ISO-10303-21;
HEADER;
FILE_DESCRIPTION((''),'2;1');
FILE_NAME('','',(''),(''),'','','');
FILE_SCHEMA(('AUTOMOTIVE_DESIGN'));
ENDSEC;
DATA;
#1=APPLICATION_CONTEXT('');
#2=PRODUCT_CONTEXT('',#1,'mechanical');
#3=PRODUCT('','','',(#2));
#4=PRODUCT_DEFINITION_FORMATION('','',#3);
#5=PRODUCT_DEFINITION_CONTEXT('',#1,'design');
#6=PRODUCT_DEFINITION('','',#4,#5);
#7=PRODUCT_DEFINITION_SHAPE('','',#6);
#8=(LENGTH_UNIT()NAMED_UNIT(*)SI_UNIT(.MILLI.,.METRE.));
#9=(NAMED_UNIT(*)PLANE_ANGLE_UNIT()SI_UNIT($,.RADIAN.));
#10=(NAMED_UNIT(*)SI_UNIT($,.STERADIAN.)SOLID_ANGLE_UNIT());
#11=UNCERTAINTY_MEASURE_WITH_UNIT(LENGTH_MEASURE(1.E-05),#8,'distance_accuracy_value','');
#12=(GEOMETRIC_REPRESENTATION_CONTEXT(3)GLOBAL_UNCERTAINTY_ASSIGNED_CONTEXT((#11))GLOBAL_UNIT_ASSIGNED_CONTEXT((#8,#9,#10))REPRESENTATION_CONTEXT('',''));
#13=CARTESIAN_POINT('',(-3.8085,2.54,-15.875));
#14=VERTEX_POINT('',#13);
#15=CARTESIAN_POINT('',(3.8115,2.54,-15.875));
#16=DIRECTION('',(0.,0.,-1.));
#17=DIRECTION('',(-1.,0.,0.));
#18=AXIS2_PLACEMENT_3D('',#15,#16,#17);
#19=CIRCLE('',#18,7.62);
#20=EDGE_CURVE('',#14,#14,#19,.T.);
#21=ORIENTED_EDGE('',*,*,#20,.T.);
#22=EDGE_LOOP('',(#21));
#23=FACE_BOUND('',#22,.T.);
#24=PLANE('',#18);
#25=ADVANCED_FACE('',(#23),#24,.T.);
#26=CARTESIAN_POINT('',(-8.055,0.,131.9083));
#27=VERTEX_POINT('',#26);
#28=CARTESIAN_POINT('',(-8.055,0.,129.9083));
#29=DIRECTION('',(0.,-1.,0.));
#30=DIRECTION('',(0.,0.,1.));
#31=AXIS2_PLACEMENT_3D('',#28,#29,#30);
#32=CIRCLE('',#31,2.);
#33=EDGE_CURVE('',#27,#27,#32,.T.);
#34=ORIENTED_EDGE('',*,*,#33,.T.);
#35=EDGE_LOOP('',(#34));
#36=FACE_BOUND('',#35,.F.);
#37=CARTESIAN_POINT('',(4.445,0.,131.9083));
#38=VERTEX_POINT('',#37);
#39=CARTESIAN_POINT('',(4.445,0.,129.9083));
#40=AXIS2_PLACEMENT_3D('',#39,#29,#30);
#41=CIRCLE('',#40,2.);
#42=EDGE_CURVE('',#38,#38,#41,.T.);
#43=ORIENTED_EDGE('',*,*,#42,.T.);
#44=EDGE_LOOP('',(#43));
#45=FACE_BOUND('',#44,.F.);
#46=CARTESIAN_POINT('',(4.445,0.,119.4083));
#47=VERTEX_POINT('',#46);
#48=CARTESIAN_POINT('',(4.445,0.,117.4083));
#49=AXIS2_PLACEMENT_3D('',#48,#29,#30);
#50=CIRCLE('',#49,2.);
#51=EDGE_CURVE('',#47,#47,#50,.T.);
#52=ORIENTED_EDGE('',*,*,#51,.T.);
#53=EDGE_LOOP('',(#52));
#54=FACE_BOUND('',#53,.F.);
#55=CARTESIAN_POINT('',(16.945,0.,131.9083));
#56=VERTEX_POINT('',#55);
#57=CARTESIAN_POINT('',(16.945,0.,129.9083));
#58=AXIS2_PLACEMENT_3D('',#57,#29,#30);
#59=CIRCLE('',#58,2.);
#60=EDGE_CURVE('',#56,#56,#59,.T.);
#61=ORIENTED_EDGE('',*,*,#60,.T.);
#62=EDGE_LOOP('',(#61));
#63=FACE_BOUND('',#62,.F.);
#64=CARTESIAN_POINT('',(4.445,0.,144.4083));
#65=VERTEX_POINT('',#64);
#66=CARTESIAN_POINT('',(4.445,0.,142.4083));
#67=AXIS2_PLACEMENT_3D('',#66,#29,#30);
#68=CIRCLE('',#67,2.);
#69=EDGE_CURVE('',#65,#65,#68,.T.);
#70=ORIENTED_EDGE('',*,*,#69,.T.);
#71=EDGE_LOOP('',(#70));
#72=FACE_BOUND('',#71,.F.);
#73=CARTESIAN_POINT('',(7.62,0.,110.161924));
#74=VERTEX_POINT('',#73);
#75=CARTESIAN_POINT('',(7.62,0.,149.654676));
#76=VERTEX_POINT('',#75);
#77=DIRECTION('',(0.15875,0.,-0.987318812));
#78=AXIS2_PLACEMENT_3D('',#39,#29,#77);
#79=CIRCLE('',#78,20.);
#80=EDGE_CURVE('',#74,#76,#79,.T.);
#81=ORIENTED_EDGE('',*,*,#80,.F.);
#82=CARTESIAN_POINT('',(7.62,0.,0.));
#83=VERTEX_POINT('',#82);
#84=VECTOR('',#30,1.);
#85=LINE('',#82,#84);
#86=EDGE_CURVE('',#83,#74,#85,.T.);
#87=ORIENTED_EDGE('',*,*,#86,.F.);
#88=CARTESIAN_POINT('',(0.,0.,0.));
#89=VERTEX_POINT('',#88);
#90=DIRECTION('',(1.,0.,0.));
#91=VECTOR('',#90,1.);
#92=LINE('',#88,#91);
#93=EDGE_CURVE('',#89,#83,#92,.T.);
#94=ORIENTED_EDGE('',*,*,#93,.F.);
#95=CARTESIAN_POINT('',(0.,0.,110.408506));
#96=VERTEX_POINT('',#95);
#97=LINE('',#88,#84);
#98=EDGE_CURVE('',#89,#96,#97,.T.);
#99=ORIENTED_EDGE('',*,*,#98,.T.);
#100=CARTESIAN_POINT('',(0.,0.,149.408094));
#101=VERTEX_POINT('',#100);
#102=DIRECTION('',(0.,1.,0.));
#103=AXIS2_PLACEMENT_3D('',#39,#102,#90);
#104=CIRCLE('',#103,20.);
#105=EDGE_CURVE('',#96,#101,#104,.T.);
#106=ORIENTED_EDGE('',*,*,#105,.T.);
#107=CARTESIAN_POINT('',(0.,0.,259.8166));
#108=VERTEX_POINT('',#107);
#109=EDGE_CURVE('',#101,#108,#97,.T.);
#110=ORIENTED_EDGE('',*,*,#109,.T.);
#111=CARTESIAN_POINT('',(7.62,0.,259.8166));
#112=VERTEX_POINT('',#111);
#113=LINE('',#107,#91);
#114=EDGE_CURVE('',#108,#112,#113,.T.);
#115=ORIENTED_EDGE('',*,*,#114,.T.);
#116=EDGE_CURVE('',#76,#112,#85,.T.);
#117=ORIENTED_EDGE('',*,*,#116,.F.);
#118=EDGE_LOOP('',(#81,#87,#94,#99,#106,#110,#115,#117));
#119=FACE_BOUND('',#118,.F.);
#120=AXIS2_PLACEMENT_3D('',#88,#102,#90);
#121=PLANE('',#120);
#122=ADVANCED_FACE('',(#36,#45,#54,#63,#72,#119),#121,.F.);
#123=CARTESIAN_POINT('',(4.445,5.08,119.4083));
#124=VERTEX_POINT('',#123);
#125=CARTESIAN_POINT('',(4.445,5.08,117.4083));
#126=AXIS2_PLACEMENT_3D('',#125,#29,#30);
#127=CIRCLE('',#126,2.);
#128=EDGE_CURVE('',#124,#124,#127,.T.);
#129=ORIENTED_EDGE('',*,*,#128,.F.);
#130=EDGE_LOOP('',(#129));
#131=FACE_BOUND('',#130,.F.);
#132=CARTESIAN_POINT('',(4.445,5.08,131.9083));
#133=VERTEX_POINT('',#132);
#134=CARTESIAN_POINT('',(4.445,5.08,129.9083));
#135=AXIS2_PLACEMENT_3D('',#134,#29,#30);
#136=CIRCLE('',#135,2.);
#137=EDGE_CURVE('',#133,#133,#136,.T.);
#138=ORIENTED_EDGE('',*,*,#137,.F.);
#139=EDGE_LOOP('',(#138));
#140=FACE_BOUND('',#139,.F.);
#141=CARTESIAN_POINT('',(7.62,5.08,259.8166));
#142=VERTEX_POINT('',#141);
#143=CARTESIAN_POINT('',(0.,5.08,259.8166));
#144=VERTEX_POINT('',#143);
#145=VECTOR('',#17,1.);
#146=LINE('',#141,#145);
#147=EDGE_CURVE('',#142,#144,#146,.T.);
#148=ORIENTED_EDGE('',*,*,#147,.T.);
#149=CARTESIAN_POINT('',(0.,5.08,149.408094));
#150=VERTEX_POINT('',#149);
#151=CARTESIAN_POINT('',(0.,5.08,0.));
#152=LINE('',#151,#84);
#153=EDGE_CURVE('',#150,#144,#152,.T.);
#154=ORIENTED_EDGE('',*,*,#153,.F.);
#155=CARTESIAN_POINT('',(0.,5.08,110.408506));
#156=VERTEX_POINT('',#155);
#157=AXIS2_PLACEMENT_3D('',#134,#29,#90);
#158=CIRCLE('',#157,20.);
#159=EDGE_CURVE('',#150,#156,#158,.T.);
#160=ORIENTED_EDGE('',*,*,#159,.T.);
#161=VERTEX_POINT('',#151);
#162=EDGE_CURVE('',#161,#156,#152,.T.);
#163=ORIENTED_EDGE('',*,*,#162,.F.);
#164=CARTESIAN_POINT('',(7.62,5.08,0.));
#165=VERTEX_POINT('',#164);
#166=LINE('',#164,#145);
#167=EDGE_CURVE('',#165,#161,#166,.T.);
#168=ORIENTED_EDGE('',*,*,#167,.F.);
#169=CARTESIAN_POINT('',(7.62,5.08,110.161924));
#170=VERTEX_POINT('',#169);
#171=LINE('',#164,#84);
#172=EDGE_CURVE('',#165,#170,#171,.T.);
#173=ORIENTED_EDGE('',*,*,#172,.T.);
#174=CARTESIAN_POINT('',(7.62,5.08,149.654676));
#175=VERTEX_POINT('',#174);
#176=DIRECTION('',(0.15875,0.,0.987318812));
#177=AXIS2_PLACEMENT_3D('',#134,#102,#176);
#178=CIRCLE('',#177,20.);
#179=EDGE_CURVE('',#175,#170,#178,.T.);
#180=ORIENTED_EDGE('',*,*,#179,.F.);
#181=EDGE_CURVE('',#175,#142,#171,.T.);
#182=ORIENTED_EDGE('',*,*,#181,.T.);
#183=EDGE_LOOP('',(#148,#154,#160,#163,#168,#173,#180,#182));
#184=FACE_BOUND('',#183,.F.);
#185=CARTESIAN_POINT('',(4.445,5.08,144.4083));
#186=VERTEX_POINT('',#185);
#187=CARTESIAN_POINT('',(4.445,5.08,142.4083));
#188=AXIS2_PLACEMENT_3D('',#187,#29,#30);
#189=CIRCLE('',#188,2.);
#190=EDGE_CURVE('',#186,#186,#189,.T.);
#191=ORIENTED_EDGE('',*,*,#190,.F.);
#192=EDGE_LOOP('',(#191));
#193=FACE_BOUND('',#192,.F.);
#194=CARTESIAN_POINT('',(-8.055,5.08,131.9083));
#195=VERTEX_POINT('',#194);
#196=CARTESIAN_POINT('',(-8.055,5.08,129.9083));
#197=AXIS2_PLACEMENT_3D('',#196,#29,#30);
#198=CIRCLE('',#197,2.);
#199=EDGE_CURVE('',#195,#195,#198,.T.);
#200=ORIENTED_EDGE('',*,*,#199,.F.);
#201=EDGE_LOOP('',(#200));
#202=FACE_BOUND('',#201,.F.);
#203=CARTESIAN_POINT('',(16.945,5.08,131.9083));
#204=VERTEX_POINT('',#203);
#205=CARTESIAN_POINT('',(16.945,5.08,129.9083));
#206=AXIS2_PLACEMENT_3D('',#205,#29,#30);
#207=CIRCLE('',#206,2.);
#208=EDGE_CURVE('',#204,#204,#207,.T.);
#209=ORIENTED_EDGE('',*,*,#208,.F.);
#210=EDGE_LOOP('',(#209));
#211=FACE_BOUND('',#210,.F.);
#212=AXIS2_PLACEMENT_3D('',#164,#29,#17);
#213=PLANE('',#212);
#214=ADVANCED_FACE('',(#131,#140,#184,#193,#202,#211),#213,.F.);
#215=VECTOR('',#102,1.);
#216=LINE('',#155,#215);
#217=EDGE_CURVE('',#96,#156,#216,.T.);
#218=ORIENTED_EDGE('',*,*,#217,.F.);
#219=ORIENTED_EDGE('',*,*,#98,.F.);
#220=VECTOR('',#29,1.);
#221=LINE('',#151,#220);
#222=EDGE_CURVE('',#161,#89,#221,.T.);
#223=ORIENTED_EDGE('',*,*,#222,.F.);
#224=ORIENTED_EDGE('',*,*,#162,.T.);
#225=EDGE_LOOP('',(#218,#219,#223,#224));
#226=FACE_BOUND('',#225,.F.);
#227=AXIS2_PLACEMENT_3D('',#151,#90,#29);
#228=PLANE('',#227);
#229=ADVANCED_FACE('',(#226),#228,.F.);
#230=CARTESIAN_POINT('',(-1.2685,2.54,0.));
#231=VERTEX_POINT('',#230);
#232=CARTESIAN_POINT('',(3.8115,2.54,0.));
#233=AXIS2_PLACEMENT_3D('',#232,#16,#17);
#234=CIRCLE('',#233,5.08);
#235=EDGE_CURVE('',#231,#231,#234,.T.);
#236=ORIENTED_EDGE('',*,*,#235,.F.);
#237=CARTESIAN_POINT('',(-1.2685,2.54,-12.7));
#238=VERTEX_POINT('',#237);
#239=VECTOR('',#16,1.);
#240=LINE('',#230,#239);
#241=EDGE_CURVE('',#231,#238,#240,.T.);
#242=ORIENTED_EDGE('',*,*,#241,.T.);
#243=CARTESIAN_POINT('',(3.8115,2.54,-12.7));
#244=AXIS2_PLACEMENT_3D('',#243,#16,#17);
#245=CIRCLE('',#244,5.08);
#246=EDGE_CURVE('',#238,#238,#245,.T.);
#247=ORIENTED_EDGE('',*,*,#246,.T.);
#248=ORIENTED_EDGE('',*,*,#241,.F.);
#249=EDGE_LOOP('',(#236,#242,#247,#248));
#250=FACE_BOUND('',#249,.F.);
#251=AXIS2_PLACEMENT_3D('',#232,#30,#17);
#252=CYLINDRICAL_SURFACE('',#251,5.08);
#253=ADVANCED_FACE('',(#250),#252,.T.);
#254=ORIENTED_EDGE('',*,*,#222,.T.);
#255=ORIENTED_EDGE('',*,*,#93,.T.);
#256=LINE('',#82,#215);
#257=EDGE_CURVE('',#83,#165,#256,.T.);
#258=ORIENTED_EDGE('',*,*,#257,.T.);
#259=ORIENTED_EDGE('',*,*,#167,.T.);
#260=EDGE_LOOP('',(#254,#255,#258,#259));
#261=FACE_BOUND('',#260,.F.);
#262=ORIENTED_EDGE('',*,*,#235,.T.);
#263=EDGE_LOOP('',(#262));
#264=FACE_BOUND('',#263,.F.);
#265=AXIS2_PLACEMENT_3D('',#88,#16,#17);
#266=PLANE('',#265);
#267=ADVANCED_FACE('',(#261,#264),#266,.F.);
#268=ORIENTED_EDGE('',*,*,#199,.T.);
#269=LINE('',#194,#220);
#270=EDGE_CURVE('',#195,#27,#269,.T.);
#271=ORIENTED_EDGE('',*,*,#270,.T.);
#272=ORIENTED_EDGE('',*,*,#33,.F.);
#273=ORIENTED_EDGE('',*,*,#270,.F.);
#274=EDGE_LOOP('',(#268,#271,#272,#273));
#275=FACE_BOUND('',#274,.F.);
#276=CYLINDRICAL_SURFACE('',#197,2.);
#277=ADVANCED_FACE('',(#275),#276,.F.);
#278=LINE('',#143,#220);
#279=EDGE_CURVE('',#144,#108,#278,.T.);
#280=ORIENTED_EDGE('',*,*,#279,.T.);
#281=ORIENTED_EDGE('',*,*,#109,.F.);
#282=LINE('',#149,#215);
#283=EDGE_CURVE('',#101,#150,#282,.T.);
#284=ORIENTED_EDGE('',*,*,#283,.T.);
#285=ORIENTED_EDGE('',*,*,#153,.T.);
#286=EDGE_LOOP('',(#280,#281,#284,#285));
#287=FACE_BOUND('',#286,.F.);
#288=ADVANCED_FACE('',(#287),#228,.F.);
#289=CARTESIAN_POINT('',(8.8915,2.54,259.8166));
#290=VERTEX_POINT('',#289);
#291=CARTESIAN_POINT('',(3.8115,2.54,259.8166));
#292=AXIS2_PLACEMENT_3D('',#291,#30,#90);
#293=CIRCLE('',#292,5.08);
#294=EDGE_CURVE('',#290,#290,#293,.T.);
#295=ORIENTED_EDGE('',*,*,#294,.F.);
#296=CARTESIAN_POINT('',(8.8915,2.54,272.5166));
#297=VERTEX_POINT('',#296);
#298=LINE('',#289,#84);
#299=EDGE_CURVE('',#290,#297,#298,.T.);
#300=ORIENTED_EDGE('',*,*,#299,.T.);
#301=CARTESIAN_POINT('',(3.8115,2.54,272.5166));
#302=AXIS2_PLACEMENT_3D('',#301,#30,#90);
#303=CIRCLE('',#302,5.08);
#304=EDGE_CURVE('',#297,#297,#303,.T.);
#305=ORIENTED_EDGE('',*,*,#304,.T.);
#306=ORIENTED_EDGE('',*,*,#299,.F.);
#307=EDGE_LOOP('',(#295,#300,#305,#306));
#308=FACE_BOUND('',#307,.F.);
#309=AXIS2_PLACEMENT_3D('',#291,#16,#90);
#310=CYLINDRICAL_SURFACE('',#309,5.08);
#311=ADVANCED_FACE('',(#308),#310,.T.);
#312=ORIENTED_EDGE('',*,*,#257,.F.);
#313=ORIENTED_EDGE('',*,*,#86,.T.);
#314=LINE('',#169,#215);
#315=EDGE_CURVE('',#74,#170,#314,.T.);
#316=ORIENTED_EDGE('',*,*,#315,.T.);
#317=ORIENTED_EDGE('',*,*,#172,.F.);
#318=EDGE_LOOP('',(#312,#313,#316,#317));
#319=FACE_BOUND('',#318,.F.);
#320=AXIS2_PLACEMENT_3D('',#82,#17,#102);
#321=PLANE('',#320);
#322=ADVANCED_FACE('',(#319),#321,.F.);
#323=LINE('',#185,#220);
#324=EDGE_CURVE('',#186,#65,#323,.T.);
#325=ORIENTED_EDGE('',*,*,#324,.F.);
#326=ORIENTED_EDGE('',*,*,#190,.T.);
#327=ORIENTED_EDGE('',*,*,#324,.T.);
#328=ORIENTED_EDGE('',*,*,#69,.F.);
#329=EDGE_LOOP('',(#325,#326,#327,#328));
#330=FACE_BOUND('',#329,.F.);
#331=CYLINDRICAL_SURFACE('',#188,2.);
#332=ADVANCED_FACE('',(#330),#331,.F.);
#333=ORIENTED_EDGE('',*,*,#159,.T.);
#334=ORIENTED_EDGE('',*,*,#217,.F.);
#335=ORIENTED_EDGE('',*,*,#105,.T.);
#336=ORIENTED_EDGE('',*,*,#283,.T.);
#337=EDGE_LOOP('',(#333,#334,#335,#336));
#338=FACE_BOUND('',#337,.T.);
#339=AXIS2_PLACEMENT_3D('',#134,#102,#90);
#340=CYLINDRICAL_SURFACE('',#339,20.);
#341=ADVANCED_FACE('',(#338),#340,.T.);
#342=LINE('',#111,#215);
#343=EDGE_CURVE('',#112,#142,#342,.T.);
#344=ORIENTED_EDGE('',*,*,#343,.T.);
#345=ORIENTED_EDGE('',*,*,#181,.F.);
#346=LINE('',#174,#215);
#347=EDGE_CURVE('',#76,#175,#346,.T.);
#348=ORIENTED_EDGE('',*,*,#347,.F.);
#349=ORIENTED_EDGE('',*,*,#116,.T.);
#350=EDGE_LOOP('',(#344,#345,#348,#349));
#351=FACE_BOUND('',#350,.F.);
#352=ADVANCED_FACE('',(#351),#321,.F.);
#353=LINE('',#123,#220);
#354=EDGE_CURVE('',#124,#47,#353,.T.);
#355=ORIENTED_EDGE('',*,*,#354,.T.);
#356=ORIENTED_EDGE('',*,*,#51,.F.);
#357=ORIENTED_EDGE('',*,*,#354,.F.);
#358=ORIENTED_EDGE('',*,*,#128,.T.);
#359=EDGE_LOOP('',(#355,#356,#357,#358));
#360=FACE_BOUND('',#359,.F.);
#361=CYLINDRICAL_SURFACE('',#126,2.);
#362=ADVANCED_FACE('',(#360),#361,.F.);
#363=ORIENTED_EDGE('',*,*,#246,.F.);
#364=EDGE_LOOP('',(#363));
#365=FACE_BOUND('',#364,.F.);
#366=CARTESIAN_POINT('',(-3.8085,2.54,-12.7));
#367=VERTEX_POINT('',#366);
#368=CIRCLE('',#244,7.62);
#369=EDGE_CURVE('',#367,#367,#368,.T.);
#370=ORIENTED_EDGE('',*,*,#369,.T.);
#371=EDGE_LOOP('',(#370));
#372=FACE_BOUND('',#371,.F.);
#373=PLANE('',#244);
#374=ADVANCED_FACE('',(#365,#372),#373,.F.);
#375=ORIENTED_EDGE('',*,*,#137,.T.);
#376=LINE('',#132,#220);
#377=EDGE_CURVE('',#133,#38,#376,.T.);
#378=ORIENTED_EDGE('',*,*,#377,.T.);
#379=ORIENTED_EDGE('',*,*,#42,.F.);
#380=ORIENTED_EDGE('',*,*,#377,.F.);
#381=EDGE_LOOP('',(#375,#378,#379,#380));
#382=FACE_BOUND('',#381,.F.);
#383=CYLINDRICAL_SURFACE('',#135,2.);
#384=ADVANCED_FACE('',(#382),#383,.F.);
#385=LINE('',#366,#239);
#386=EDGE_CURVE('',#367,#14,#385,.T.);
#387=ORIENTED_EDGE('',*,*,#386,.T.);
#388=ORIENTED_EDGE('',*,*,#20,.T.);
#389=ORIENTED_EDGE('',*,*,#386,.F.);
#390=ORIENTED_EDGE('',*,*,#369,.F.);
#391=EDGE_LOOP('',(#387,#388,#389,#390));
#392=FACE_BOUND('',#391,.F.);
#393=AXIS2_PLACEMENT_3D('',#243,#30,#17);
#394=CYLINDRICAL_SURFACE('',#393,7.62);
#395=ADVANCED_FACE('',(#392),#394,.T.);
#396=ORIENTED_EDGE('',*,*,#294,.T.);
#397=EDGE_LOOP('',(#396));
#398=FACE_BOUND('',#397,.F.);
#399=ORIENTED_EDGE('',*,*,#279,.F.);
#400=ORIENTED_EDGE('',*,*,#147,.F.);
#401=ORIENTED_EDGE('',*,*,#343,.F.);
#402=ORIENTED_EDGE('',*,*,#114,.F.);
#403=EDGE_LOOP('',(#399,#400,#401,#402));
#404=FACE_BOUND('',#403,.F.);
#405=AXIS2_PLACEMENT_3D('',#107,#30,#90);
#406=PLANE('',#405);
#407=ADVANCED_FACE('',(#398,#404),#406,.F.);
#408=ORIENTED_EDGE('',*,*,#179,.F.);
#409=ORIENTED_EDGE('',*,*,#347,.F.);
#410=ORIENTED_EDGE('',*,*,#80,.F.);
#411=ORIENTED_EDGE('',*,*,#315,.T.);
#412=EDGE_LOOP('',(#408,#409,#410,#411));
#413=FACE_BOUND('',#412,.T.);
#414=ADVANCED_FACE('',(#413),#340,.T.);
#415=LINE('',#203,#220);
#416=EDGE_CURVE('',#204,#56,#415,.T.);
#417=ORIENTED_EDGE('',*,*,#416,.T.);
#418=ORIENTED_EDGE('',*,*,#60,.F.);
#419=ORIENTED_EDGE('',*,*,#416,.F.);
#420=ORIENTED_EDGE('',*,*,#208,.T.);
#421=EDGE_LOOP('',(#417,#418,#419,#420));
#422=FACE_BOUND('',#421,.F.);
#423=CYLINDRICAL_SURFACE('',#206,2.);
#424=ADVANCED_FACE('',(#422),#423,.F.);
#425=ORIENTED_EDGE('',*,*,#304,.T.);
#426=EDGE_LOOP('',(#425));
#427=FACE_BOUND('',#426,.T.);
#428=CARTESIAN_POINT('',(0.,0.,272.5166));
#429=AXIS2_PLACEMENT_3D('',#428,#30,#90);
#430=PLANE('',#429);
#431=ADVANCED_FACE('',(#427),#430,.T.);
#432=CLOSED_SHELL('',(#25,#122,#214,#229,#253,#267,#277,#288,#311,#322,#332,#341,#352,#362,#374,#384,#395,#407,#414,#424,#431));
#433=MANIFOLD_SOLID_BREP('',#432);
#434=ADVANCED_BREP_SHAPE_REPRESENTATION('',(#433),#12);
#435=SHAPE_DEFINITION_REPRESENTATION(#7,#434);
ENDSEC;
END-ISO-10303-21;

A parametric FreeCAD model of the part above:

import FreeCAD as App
import Part
import Sketcher
Q = App.Units.Quantity


def add_polygon(sketch, points):
    """Adds a closed chain of lines whose ends are joined by coincident constraints."""
    first, n = sketch.GeometryCount, len(points)
    for a, b in zip(points, points[1:] + points[:1]):
        sketch.addGeometry(Part.LineSegment(App.Vector(*a, 0), App.Vector(*b, 0)), False)
    for i in range(n):
        sketch.addConstraint(Sketcher.Constraint("Coincident", first + i, 2, first + (i + 1) % n, 1))

doc = App.newDocument("Part")
body = doc.addObject("PartDesign::Body", "Body")

# Sketch on XY plane
sketch1 = doc.addObject("Sketcher::SketchObject", "Sketch")
body.addObject(sketch1)
sketch1.AttachmentSupport = (doc.XY_Plane, [""])
sketch1.MapMode = "FlatFace"
add_polygon(sketch1, [(0, 5), (0, 0), (8, 0), (8, 5)])  # lines 0-3
sketch1.addConstraint(Sketcher.Constraint("Vertical", 0))
sketch1.addConstraint(Sketcher.Constraint("Horizontal", 1))
sketch1.addConstraint(Sketcher.Constraint("Vertical", 2))
sketch1.addConstraint(Sketcher.Constraint("Horizontal", 3))
sketch1.addConstraint(Sketcher.Constraint("Coincident", 0, 2, -1, 1))
sketch1.addConstraint(Sketcher.Constraint("DistanceX", 1, 1, 1, 2, Q("0.3 in")))
sketch1.addConstraint(Sketcher.Constraint("DistanceY", 0, 2, 0, 1, Q("0.2 in")))
pad1 = doc.addObject("PartDesign::Pad", "Pad")
body.addObject(pad1)
pad1.Profile = sketch1
pad1.Length = Q("10.229 in")

# Sketch on XY plane
sketch2 = doc.addObject("Sketcher::SketchObject", "Sketch001")
body.addObject(sketch2)
sketch2.AttachmentSupport = (doc.XY_Plane, [""])
sketch2.MapMode = "FlatFace"
sketch2.AttachmentOffset = App.Placement(App.Vector(0, 0, 10.229 * 25.4), App.Rotation())
sketch2.addGeometry(Part.Circle(App.Vector(4, 3, 0), App.Vector(0, 0, 1), 5), False)
sketch2.addConstraint(Sketcher.Constraint("Diameter", 0, Q("0.4 in")))
sketch2.addConstraint(Sketcher.Constraint("DistanceY", -1, 1, 0, 3, Q("0.1 in")))
sketch2.addConstraint(Sketcher.Constraint("DistanceX", -1, 1, 0, 3, 3.8115))
pad2 = doc.addObject("PartDesign::Pad", "Pad001")
body.addObject(pad2)
pad2.Profile = sketch2
pad2.Length = Q("0.5 in")

# Sketch on XY plane
sketch3 = doc.addObject("Sketcher::SketchObject", "Sketch002")
body.addObject(sketch3)
sketch3.AttachmentSupport = (doc.XY_Plane, [""])
sketch3.MapMode = "FlatFace"
sketch3.addGeometry(Part.Circle(App.Vector(4, 3, 0), App.Vector(0, 0, 1), 5), False)
sketch3.addConstraint(Sketcher.Constraint("Diameter", 0, Q("0.4 in")))
sketch3.addConstraint(Sketcher.Constraint("DistanceY", -1, 1, 0, 3, Q("0.1 in")))
sketch3.addConstraint(Sketcher.Constraint("DistanceX", -1, 1, 0, 3, 3.8115))
pad3 = doc.addObject("PartDesign::Pad", "Pad002")
body.addObject(pad3)
pad3.Profile = sketch3
pad3.Length = Q("0.5 in")
pad3.Reversed = True

# Sketch on XY plane
sketch4 = doc.addObject("Sketcher::SketchObject", "Sketch003")
body.addObject(sketch4)
sketch4.AttachmentSupport = (doc.XY_Plane, [""])
sketch4.MapMode = "FlatFace"
sketch4.AttachmentOffset = App.Placement(App.Vector(0, 0, -0.5 * 25.4), App.Rotation())
sketch4.addGeometry(Part.Circle(App.Vector(4, 3, 0), App.Vector(0, 0, 1), 8), False)
sketch4.addConstraint(Sketcher.Constraint("Diameter", 0, Q("0.6 in")))
sketch4.addConstraint(Sketcher.Constraint("DistanceY", -1, 1, 0, 3, Q("0.1 in")))
sketch4.addConstraint(Sketcher.Constraint("DistanceX", -1, 1, 0, 3, 3.8115))
pad4 = doc.addObject("PartDesign::Pad", "Pad003")
body.addObject(pad4)
pad4.Profile = sketch4
pad4.Length = Q("0.125 in")
pad4.Reversed = True

# Sketch on XZ plane
sketch5 = doc.addObject("Sketcher::SketchObject", "Sketch004")
body.addObject(sketch5)
sketch5.AttachmentSupport = (doc.XZ_Plane, [""])
sketch5.MapMode = "FlatFace"
sketch5.AttachmentOffset = App.Placement(App.Vector(0, 0, -0.2 * 25.4), App.Rotation())
sketch5.addGeometry(Part.Circle(App.Vector(4, 130, 0), App.Vector(0, 0, 1), 20), False)
sketch5.addConstraint(Sketcher.Constraint("Diameter", 0, Q("1.5748 in")))
sketch5.addConstraint(Sketcher.Constraint("DistanceY", -1, 1, 0, 3, Q("5.1145 in")))
sketch5.addConstraint(Sketcher.Constraint("DistanceX", -1, 1, 0, 3, Q("0.175 in")))
pad5 = doc.addObject("PartDesign::Pad", "Pad004")
body.addObject(pad5)
pad5.Profile = sketch5
pad5.Length = Q("0.2 in")

# Sketch on XZ plane
sketch6 = doc.addObject("Sketcher::SketchObject", "Sketch005")
body.addObject(sketch6)
sketch6.AttachmentSupport = (doc.XZ_Plane, [""])
sketch6.MapMode = "FlatFace"
sketch6.AttachmentOffset = App.Placement(App.Vector(0, 0, -0.2 * 25.4), App.Rotation())
sketch6.addGeometry(Part.Circle(App.Vector(4.4, 129.9, 0), App.Vector(0, 0, 1), 2), False)
sketch6.addGeometry(Part.Circle(App.Vector(-8.1, 129.9, 0), App.Vector(0, 0, 1), 2), False)
sketch6.addGeometry(Part.Circle(App.Vector(4.4, 117.4, 0), App.Vector(0, 0, 1), 2), False)
sketch6.addGeometry(Part.Circle(App.Vector(16.9, 129.9, 0), App.Vector(0, 0, 1), 2), False)
sketch6.addGeometry(Part.Circle(App.Vector(4.4, 142.4, 0), App.Vector(0, 0, 1), 2), False)
sketch6.addConstraint(Sketcher.Constraint("Equal", 0, 1))
sketch6.addConstraint(Sketcher.Constraint("Equal", 1, 2))
sketch6.addConstraint(Sketcher.Constraint("Equal", 2, 3))
sketch6.addConstraint(Sketcher.Constraint("Equal", 3, 4))
sketch6.addConstraint(Sketcher.Constraint("Horizontal", 0, 3, 1, 3))
sketch6.addConstraint(Sketcher.Constraint("Horizontal", 1, 3, 3, 3))
sketch6.addConstraint(Sketcher.Constraint("Vertical", 0, 3, 2, 3))
sketch6.addConstraint(Sketcher.Constraint("Vertical", 2, 3, 4, 3))
sketch6.addConstraint(Sketcher.Constraint("Diameter", 0, 4.0))
sketch6.addConstraint(Sketcher.Constraint("DistanceX", -1, 1, 0, 3, Q("0.175 in")))
sketch6.addConstraint(Sketcher.Constraint("DistanceY", -1, 1, 0, 3, Q("5.1145 in")))
sketch6.addConstraint(Sketcher.Constraint("DistanceX", 1, 3, -1, 1, 8.055))
sketch6.addConstraint(Sketcher.Constraint("DistanceY", -1, 1, 2, 3, 117.4083))
sketch6.addConstraint(Sketcher.Constraint("DistanceX", -1, 1, 3, 3, 16.945))
sketch6.addConstraint(Sketcher.Constraint("DistanceY", -1, 1, 4, 3, 142.4083))
doc.recompute()
hole = doc.addObject("PartDesign::Hole", "Hole")
body.addObject(hole)
hole.Profile = sketch6
hole.ThreadType = "None"
hole.Diameter = 4
hole.DepthType = "ThroughAll"
hole.Reversed = True

doc.recompute()
